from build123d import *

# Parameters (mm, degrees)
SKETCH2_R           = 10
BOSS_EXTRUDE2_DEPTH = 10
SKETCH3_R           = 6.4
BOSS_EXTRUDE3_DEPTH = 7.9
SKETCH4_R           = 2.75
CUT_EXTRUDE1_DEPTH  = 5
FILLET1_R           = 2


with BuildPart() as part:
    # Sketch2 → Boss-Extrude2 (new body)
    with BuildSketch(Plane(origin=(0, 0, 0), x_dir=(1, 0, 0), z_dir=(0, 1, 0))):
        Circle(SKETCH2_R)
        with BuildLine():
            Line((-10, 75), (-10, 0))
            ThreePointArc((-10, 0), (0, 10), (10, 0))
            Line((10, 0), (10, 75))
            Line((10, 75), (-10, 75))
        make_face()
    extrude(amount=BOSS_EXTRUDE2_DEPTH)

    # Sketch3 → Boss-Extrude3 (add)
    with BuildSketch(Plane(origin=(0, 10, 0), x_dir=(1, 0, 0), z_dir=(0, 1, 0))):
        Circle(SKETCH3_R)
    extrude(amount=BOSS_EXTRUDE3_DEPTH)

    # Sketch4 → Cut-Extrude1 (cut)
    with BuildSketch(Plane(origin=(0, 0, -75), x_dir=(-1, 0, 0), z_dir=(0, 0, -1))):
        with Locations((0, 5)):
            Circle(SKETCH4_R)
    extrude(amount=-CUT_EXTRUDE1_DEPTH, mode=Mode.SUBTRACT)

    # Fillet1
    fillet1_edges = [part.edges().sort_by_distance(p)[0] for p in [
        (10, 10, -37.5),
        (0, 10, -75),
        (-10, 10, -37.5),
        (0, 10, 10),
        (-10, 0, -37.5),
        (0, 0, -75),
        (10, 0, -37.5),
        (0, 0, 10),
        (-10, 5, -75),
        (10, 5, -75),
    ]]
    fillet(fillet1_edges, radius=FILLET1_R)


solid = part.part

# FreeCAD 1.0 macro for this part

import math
import FreeCAD as App
import Part
import Sketcher
from FreeCAD import Vector


def edges_at(feature, points):
    """Names of the edges that pass closest to the given points."""
    edges = feature.Shape.Edges
    near = lambda p: min(range(len(edges)), key=lambda i: edges[i].distToShape(Part.Vertex(*p))[0])
    return sorted({f"Edge{near(p) + 1}" for p in points})

doc = App.newDocument("Part")
body = doc.addObject("PartDesign::Body", "Body")

# Sketch on XZ plane
sketch1 = body.newObject("Sketcher::SketchObject", "Sketch")
sketch1.AttachmentSupport = (doc.getObject("XZ_Plane"), [""])
sketch1.MapMode = "FlatFace"
sketch1.addGeometry(Part.ArcOfCircle(Part.Circle(Vector(0, 0, 0), Vector(0, 0, 1), 10), math.radians(0), math.radians(180)), False)
sketch1.addGeometry(Part.LineSegment(Vector(10, 0, 0), Vector(10, -75, 0)), False)
sketch1.addGeometry(Part.LineSegment(Vector(10, -75, 0), Vector(-10, -75, 0)), False)
sketch1.addGeometry(Part.LineSegment(Vector(-10, -75, 0), Vector(-10, 0, 0)), False)
sketch1.addConstraint(Sketcher.Constraint("Tangent", 0, 1, 1, 1))
sketch1.addConstraint(Sketcher.Constraint("Coincident", 1, 2, 2, 1))
sketch1.addConstraint(Sketcher.Constraint("Coincident", 2, 2, 3, 1))
sketch1.addConstraint(Sketcher.Constraint("Tangent", 3, 2, 0, 2))
sketch1.addConstraint(Sketcher.Constraint("Vertical", 1))
sketch1.addConstraint(Sketcher.Constraint("Horizontal", 2))
sketch1.addConstraint(Sketcher.Constraint("Vertical", 3))
sketch1.addConstraint(Sketcher.Constraint("Coincident", 0, 3, -1, 1))
sketch1.addConstraint(Sketcher.Constraint("Radius", 0, 10.0))
sketch1.addConstraint(Sketcher.Constraint("DistanceY", 1, 2, 1, 1, 75.0))
pad1 = body.newObject("PartDesign::Pad", "Pad")
pad1.Profile = sketch1
pad1.Length = 10
pad1.Reversed = True

# Sketch on XZ plane
sketch2 = body.newObject("Sketcher::SketchObject", "Sketch001")
sketch2.AttachmentSupport = (doc.getObject("XZ_Plane"), [""])
sketch2.MapMode = "FlatFace"
sketch2.AttachmentOffset = App.Placement(Vector(0, 0, -10), App.Rotation())
sketch2.addGeometry(Part.Circle(Vector(0, 0, 0), Vector(0, 0, 1), 6.4), False)
sketch2.addConstraint(Sketcher.Constraint("Coincident", 0, 3, -1, 1))
sketch2.addConstraint(Sketcher.Constraint("Diameter", 0, 12.8))
pad2 = body.newObject("PartDesign::Pad", "Pad001")
pad2.Profile = sketch2
pad2.Length = 7.9
pad2.Reversed = True

# Sketch on XY plane
sketch3 = body.newObject("Sketcher::SketchObject", "Sketch002")
sketch3.AttachmentSupport = (doc.getObject("XY_Plane"), [""])
sketch3.MapMode = "FlatFace"
sketch3.AttachmentOffset = App.Placement(Vector(0, 0, -75), App.Rotation())
sketch3.addGeometry(Part.Circle(Vector(0, 5, 0), Vector(0, 0, 1), 2.75), False)
sketch3.addConstraint(Sketcher.Constraint("PointOnObject", 0, 3, -2))
sketch3.addConstraint(Sketcher.Constraint("Diameter", 0, 5.5))
sketch3.addConstraint(Sketcher.Constraint("DistanceY", -1, 1, 0, 3, 5.0))
pocket1 = body.newObject("PartDesign::Pocket", "Pocket")
pocket1.Profile = sketch3
pocket1.Length = 5
pocket1.Reversed = True
doc.recompute()

fillet = body.newObject("PartDesign::Fillet", "Fillet")
fillet.Base = (pocket1, edges_at(pocket1, [
    (10, 10, -37.5),
    (0, 10, -75),
    (-10, 10, -37.5),
    (0, 10, 10),
    (-10, 0, -37.5),
    (0, 0, -75),
    (10, 0, -37.5),
    (0, 0, 10),
    (-10, 5, -75),
    (10, 5, -75),
]))
fillet.Radius = 2

doc.recompute()
